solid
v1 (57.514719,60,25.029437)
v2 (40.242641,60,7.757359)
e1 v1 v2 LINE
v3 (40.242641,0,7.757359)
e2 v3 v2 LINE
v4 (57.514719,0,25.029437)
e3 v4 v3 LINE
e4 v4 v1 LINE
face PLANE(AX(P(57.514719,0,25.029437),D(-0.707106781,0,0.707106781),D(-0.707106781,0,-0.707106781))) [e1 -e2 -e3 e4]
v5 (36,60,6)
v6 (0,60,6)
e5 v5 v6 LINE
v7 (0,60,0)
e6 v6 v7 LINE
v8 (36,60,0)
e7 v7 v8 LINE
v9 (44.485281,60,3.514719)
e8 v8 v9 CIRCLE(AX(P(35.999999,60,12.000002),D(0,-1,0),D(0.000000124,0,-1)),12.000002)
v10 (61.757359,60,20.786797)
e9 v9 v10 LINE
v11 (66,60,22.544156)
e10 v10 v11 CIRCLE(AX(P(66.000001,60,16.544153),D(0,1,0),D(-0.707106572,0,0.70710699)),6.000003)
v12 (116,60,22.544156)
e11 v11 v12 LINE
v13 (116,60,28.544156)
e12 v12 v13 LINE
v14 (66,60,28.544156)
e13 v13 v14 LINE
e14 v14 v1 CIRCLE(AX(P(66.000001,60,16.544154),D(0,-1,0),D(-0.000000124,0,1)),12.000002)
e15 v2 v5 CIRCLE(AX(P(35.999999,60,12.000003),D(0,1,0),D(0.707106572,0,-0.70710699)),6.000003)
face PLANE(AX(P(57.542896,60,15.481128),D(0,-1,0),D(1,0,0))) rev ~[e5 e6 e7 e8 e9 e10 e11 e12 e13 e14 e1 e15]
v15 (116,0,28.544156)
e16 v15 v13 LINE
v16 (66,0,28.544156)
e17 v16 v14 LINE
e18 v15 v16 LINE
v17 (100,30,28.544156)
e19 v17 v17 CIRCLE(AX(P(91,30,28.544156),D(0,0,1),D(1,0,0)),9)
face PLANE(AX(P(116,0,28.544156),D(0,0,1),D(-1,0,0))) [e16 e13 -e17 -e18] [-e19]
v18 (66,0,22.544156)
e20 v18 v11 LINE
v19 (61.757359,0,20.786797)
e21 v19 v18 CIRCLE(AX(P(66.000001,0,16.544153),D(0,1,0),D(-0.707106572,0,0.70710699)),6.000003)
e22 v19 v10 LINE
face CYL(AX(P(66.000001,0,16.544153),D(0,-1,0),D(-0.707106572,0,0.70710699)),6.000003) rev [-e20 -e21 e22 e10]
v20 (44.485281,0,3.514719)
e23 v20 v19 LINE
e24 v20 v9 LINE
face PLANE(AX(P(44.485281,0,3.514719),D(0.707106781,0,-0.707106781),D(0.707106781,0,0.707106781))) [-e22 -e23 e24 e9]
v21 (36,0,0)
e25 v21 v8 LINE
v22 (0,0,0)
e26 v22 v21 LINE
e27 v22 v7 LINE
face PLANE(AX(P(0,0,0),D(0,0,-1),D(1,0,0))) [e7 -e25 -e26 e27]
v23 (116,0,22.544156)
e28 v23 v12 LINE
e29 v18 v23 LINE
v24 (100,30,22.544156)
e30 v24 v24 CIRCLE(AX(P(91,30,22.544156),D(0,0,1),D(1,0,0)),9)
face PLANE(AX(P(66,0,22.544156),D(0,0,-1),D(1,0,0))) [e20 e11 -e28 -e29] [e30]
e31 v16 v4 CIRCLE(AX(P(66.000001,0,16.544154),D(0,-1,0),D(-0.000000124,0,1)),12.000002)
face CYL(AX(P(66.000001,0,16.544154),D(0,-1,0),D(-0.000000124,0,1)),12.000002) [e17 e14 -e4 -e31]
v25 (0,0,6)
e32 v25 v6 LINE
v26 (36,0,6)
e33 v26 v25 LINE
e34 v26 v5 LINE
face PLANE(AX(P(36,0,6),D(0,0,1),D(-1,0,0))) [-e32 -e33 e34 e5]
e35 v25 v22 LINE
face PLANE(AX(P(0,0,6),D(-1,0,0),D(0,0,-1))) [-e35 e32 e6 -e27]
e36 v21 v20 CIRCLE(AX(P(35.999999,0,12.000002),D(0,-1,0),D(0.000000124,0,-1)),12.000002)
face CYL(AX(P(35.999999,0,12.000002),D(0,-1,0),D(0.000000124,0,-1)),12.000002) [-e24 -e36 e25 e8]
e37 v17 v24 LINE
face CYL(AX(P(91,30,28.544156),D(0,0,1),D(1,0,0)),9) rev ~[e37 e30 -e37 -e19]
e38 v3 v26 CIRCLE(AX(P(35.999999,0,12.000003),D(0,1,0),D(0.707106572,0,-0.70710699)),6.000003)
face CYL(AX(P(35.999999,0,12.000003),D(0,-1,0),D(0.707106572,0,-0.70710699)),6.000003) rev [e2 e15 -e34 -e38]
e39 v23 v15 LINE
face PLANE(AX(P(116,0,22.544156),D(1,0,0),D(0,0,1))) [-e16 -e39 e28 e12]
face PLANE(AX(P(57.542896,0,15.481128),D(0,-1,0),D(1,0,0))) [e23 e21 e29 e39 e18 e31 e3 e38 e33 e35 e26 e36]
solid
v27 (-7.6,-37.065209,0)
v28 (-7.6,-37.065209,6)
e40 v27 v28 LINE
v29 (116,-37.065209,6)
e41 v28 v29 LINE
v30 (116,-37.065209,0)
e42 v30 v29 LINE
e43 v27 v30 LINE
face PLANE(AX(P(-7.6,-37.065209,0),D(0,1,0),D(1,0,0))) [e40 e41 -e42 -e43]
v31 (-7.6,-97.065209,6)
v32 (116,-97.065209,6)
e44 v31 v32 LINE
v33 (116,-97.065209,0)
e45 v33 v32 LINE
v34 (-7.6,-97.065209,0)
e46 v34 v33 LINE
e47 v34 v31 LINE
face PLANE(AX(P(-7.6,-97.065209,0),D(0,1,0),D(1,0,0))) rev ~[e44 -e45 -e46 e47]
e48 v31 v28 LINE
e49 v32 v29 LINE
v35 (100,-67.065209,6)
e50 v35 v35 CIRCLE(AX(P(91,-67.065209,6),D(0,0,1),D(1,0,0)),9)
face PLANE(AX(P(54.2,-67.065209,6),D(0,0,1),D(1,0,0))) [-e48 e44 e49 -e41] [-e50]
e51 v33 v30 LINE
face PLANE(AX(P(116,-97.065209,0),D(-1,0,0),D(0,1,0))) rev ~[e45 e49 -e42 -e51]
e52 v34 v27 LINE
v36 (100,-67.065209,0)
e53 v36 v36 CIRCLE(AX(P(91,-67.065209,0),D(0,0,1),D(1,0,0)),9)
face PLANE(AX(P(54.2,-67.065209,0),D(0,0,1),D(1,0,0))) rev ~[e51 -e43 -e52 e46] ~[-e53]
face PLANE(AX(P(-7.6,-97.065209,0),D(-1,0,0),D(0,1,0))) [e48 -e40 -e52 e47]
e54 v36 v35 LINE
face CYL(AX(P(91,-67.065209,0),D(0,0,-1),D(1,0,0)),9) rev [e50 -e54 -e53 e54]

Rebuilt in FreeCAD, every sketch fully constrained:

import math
import FreeCAD as App
import Part
import Sketcher
from FreeCAD import Vector
Q = App.Units.Quantity

doc = App.newDocument("Part")
body = doc.addObject("PartDesign::Body", "Body")

# Sketch on XZ plane
sketch1 = body.newObject("Sketcher::SketchObject", "Sketch")
sketch1.AttachmentSupport = (doc.getObject("XZ_Plane"), [""])
sketch1.MapMode = "FlatFace"
sketch1.addGeometry([
    Part.LineSegment(Vector(0, 0, 0), Vector(36, 0, 0)),  # 0
    Part.ArcOfCircle(Part.Circle(Vector(36, 12, 0), Vector(0, 0, 1), 12), math.radians(-90), math.radians(-45)),  # 1
    Part.LineSegment(Vector(44.5, 3.5, 0), Vector(61.8, 20.8, 0)),  # 2
    Part.ArcOfCircle(Part.Circle(Vector(66, 16.5, 0), Vector(0, 0, 1), 6), math.radians(90), math.radians(135)),  # 3
    Part.LineSegment(Vector(66, 22.5, 0), Vector(116, 22.5, 0)),  # 4
    Part.LineSegment(Vector(116, 22.5, 0), Vector(116, 28.5, 0)),  # 5
    Part.LineSegment(Vector(116, 28.5, 0), Vector(66, 28.5, 0)),  # 6
    Part.ArcOfCircle(Part.Circle(Vector(66, 16.5, 0), Vector(0, 0, 1), 12), math.radians(90), math.radians(135)),  # 7
    Part.LineSegment(Vector(57.5, 25, 0), Vector(40.2, 7.8, 0)),  # 8
    Part.ArcOfCircle(Part.Circle(Vector(36, 12, 0), Vector(0, 0, 1), 6), math.radians(-90), math.radians(-45)),  # 9
    Part.LineSegment(Vector(36, 6, 0), Vector(0, 6, 0)),  # 10
    Part.LineSegment(Vector(0, 6, 0), Vector(0, 0, 0)),  # 11
], False)
sketch1.addConstraint([
    Sketcher.Constraint("Tangent", 0, 2, 1, 1),
    Sketcher.Constraint("Tangent", 1, 2, 2, 1),
    Sketcher.Constraint("Tangent", 2, 2, 3, 2),
    Sketcher.Constraint("Tangent", 3, 1, 4, 1),
    Sketcher.Constraint("Coincident", 4, 2, 5, 1),
    Sketcher.Constraint("Coincident", 5, 2, 6, 1),
    Sketcher.Constraint("Tangent", 6, 2, 7, 1),
    Sketcher.Constraint("Tangent", 7, 2, 8, 1),
    Sketcher.Constraint("Tangent", 8, 2, 9, 2),
    Sketcher.Constraint("Tangent", 9, 1, 10, 1),
    Sketcher.Constraint("Coincident", 10, 2, 11, 1),
    Sketcher.Constraint("Coincident", 11, 2, 0, 1),
    Sketcher.Constraint("Horizontal", 0),
    Sketcher.Constraint("Horizontal", 4),
    Sketcher.Constraint("Vertical", 5),
    Sketcher.Constraint("Horizontal", 6),
    Sketcher.Constraint("Horizontal", 10),
    Sketcher.Constraint("Vertical", 11),
    Sketcher.Constraint("Coincident", 11, 2, -1, 1),
    Sketcher.Constraint("Coincident", 7, 3, 3, 3),
    Sketcher.Constraint("Coincident", 9, 3, 1, 3),
    Sketcher.Constraint("Equal", 1, 7),
    Sketcher.Constraint("Equal", 3, 9),
    Sketcher.Constraint("Radius", 1, Q("12.000002 mm")),
    Sketcher.Constraint("DistanceX", 0, 1, 0, 2, Q("36 mm")),
    Sketcher.Constraint("DistanceX", 4, 1, 4, 2, Q("50 mm")),
    Sketcher.Constraint("DistanceY", 5, 1, 5, 2, Q("6 mm")),
    Sketcher.Constraint("Angle", 2, Q("45 deg")),
    Sketcher.Constraint("DistanceX", -1, 1, 3, 3, Q("66.000001 mm")),
])
pad1 = body.newObject("PartDesign::Pad", "Pad")
pad1.Profile = sketch1
pad1.Length = 60
pad1.Reversed = True

# Sketch on XY plane
sketch2 = body.newObject("Sketcher::SketchObject", "Sketch001")
sketch2.AttachmentSupport = (doc.getObject("XY_Plane"), [""])
sketch2.MapMode = "FlatFace"
sketch2.AttachmentOffset = App.Placement(Vector(0, 0, 28.544156), App.Rotation())
sketch2.addGeometry(Part.Circle(Vector(91, 30, 0), Vector(0, 0, 1), 9), False)
sketch2.addConstraint([
    Sketcher.Constraint("Diameter", 0, Q("18 mm")),
    Sketcher.Constraint("DistanceX", -1, 1, 0, 3, Q("91 mm")),
    Sketcher.Constraint("DistanceY", -1, 1, 0, 3, Q("30 mm")),
])
pocket1 = body.newObject("PartDesign::Pocket", "Pocket")
pocket1.Profile = sketch2
pocket1.Length = 25
body2 = doc.addObject("PartDesign::Body", "Body001")

# Sketch on XY plane
sketch3 = body2.newObject("Sketcher::SketchObject", "Sketch002")
sketch3.AttachmentSupport = (doc.getObject("XY_Plane001"), [""])
sketch3.MapMode = "FlatFace"
sketch3.addGeometry([
    Part.LineSegment(Vector(-8, -37, 0), Vector(-8, -97, 0)),  # 0
    Part.LineSegment(Vector(-8, -97, 0), Vector(116, -97, 0)),  # 1
    Part.LineSegment(Vector(116, -97, 0), Vector(116, -37, 0)),  # 2
    Part.LineSegment(Vector(116, -37, 0), Vector(-8, -37, 0)),  # 3
    Part.Circle(Vector(91, -67, 0), Vector(0, 0, 1), 9),  # 4
], False)
sketch3.addConstraint([
    Sketcher.Constraint("Coincident", 0, 2, 1, 1),
    Sketcher.Constraint("Coincident", 1, 2, 2, 1),
    Sketcher.Constraint("Coincident", 2, 2, 3, 1),
    Sketcher.Constraint("Coincident", 3, 2, 0, 1),
    Sketcher.Constraint("Vertical", 0),
    Sketcher.Constraint("Horizontal", 1),
    Sketcher.Constraint("Vertical", 2),
    Sketcher.Constraint("Horizontal", 3),
    Sketcher.Constraint("Diameter", 4, Q("18 mm")),
    Sketcher.Constraint("DistanceY", 0, 2, 0, 1, Q("60 mm")),
    Sketcher.Constraint("DistanceX", 1, 1, 1, 2, Q("123.6 mm")),
    Sketcher.Constraint("DistanceX", -1, 1, 4, 3, Q("91 mm")),
    Sketcher.Constraint("DistanceX", -1, 1, 1, 2, Q("116 mm")),
    Sketcher.Constraint("DistanceY", 0, 2, 4, 3, Q("30 mm")),
    Sketcher.Constraint("DistanceY", 4, 3, -1, 1, Q("67.065209 mm")),
])
pad2 = body2.newObject("PartDesign::Pad", "Pad001")
pad2.Profile = sketch3
pad2.Length = 6

doc.recompute()
